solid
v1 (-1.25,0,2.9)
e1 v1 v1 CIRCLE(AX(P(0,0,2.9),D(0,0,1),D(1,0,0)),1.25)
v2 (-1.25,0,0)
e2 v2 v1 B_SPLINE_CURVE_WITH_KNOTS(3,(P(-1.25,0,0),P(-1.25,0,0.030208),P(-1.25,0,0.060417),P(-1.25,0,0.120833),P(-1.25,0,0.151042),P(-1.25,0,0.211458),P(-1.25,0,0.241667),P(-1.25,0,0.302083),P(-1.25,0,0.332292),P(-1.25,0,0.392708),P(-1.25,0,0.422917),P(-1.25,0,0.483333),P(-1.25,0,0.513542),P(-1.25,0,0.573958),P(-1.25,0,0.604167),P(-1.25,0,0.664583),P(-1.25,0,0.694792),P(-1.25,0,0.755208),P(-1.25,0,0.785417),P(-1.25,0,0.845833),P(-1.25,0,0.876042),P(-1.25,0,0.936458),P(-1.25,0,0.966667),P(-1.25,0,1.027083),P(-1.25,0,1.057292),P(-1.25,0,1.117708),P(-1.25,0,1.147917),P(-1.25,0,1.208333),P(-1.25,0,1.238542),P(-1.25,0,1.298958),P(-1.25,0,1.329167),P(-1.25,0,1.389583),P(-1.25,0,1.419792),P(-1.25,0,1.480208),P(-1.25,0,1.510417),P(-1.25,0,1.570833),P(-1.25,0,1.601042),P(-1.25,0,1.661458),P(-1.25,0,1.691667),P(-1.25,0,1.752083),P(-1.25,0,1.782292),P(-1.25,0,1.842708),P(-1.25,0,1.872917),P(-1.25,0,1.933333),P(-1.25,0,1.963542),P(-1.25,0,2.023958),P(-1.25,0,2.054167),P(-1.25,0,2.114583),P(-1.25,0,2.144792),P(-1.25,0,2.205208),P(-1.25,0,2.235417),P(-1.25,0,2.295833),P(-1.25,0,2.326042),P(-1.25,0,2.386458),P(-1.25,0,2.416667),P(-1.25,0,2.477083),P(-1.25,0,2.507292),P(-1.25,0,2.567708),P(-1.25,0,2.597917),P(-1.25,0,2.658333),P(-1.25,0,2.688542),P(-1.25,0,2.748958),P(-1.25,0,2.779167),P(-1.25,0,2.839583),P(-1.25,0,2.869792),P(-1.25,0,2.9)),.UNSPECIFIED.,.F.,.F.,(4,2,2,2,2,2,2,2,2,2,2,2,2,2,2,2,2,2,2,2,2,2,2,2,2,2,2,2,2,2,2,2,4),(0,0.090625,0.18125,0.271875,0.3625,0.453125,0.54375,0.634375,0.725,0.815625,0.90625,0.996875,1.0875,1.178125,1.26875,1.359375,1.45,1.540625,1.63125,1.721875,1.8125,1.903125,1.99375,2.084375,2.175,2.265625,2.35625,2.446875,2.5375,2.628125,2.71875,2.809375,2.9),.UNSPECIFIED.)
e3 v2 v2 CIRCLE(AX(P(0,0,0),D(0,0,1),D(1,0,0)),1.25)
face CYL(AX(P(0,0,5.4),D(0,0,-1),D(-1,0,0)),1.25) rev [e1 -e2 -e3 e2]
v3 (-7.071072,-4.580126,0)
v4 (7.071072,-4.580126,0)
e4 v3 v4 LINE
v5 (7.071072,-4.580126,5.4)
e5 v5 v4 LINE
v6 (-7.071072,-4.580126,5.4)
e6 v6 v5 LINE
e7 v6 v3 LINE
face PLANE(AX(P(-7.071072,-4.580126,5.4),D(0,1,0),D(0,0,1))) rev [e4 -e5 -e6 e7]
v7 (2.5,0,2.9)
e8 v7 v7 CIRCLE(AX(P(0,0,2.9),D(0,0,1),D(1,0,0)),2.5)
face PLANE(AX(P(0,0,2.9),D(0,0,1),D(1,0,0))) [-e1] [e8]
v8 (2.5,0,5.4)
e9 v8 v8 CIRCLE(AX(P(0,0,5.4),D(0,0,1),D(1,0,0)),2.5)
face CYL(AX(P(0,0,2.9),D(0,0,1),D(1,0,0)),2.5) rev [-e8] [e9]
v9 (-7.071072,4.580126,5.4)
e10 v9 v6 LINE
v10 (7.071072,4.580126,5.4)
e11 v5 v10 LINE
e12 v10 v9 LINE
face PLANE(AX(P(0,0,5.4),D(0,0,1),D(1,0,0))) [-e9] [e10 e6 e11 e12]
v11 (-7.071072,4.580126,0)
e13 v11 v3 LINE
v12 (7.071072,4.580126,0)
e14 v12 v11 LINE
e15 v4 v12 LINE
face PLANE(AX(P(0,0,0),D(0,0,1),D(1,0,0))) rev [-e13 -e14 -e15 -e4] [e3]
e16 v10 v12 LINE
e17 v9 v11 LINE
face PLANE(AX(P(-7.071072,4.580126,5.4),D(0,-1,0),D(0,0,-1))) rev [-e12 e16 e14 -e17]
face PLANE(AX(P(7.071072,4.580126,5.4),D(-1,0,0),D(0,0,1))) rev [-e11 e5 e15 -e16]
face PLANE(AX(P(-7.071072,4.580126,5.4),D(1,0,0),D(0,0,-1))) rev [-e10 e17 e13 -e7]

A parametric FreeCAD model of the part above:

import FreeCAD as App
import Part
import Sketcher

V = App.Vector

doc = App.newDocument("Part")
body = doc.addObject("PartDesign::Body", "Body")

# Sketch on XY plane
sketch1 = body.newObject("Sketcher::SketchObject", "Sketch")
sketch1.AttachmentSupport = (doc.getObject("XY_Plane"), [""])
sketch1.MapMode = "FlatFace"
sketch1.addGeometry(Part.LineSegment(V(-7.1, 4.6, 0), V(-7.1, -4.6, 0)), False)
sketch1.addGeometry(Part.LineSegment(V(-7.1, -4.6, 0), V(7.1, -4.6, 0)), False)
sketch1.addGeometry(Part.LineSegment(V(7.1, -4.6, 0), V(7.1, 4.6, 0)), False)
sketch1.addGeometry(Part.LineSegment(V(7.1, 4.6, 0), V(-7.1, 4.6, 0)), False)
sketch1.addGeometry(Part.Circle(V(0, 0, 0), V(0, 0, 1), 1.2), False)
sketch1.addConstraint(Sketcher.Constraint("Coincident", 0, 2, 1, 1))
sketch1.addConstraint(Sketcher.Constraint("Coincident", 1, 2, 2, 1))
sketch1.addConstraint(Sketcher.Constraint("Coincident", 2, 2, 3, 1))
sketch1.addConstraint(Sketcher.Constraint("Coincident", 3, 2, 0, 1))
sketch1.addConstraint(Sketcher.Constraint("Vertical", 0))
sketch1.addConstraint(Sketcher.Constraint("Horizontal", 1))
sketch1.addConstraint(Sketcher.Constraint("Vertical", 2))
sketch1.addConstraint(Sketcher.Constraint("Horizontal", 3))
sketch1.addConstraint(Sketcher.Constraint("Coincident", 4, 3, -1, 1))
sketch1.addConstraint(Sketcher.Constraint("Symmetric", 0, 2, 2, 2, -1, 1))
sketch1.addConstraint(Sketcher.Constraint("Diameter", 4, 2.5))
sketch1.addConstraint(Sketcher.Constraint("DistanceY", 0, 2, 0, 1, 9.160252))
sketch1.addConstraint(Sketcher.Constraint("DistanceX", 1, 1, 1, 2, 14.142143))
pad1 = body.newObject("PartDesign::Pad", "Pad")
pad1.Profile = sketch1
pad1.Length = 5.4

# Sketch on XY plane
sketch2 = body.newObject("Sketcher::SketchObject", "Sketch001")
sketch2.AttachmentSupport = (doc.getObject("XY_Plane"), [""])
sketch2.MapMode = "FlatFace"
sketch2.AttachmentOffset = App.Placement(V(0, 0, 5.4), App.Rotation())
sketch2.addGeometry(Part.Circle(V(0, 0, 0), V(0, 0, 1), 2.5), False)
sketch2.addConstraint(Sketcher.Constraint("Coincident", 0, 3, -1, 1))
sketch2.addConstraint(Sketcher.Constraint("Diameter", 0, 5.0))
pocket1 = body.newObject("PartDesign::Pocket", "Pocket")
pocket1.Profile = sketch2
pocket1.Length = 2.5

doc.recompute()
